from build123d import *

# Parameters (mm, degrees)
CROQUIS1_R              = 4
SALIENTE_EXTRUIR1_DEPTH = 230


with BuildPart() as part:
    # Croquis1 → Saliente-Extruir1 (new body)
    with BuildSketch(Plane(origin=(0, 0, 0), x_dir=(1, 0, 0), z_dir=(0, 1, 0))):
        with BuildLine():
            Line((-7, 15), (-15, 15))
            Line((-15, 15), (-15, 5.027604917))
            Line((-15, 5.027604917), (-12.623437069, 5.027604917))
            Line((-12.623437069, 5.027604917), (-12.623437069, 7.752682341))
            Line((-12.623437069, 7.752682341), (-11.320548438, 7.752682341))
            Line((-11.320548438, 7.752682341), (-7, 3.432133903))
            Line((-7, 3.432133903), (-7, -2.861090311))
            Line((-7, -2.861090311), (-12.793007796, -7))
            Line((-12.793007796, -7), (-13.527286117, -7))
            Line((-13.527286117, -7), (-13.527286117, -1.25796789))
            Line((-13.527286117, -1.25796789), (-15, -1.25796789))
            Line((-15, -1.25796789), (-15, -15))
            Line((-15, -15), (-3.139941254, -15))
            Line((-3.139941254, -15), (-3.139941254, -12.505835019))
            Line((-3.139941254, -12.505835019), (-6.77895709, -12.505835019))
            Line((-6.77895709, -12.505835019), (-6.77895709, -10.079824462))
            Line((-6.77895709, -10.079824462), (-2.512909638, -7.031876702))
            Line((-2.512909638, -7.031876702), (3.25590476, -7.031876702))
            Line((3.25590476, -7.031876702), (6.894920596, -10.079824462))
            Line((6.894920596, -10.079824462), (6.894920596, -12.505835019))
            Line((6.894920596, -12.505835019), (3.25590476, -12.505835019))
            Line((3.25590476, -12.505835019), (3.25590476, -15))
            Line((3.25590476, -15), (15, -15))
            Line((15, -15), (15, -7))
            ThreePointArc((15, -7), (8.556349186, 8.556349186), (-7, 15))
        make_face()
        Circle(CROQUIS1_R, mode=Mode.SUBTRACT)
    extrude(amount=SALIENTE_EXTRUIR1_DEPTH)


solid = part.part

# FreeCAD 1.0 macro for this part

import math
import FreeCAD as App
import Part
import Sketcher
Q = App.Units.Quantity

doc = App.newDocument("Part")
body = doc.addObject("PartDesign::Body", "Body")

# Sketch on XZ plane
sketch1 = doc.addObject("Sketcher::SketchObject", "Sketch")
body.addObject(sketch1)
sketch1.AttachmentSupport = (doc.XZ_Plane, [""])
sketch1.MapMode = "FlatFace"
sketch1.addGeometry([
    Part.LineSegment(App.Vector(-7, -15, 0), App.Vector(-15, -15, 0)),  # 0
    Part.LineSegment(App.Vector(-15, -15, 0), App.Vector(-15, -5, 0)),  # 1
    Part.LineSegment(App.Vector(-15, -5, 0), App.Vector(-12.6, -5, 0)),  # 2
    Part.LineSegment(App.Vector(-12.6, -5, 0), App.Vector(-12.6, -7.8, 0)),  # 3
    Part.LineSegment(App.Vector(-12.6, -7.8, 0), App.Vector(-11.3, -7.8, 0)),  # 4
    Part.LineSegment(App.Vector(-11.3, -7.8, 0), App.Vector(-7, -3.4, 0)),  # 5
    Part.LineSegment(App.Vector(-7, -3.4, 0), App.Vector(-7, 2.9, 0)),  # 6
    Part.LineSegment(App.Vector(-7, 2.9, 0), App.Vector(-12.8, 7, 0)),  # 7
    Part.LineSegment(App.Vector(-12.8, 7, 0), App.Vector(-13.5, 7, 0)),  # 8
    Part.LineSegment(App.Vector(-13.5, 7, 0), App.Vector(-13.5, 1.3, 0)),  # 9
    Part.LineSegment(App.Vector(-13.5, 1.3, 0), App.Vector(-15, 1.3, 0)),  # 10
    Part.LineSegment(App.Vector(-15, 1.3, 0), App.Vector(-15, 15, 0)),  # 11
    Part.LineSegment(App.Vector(-15, 15, 0), App.Vector(-3.1, 15, 0)),  # 12
    Part.LineSegment(App.Vector(-3.1, 15, 0), App.Vector(-3.1, 12.5, 0)),  # 13
    Part.LineSegment(App.Vector(-3.1, 12.5, 0), App.Vector(-6.8, 12.5, 0)),  # 14
    Part.LineSegment(App.Vector(-6.8, 12.5, 0), App.Vector(-6.8, 10.1, 0)),  # 15
    Part.LineSegment(App.Vector(-6.8, 10.1, 0), App.Vector(-2.5, 7, 0)),  # 16
    Part.LineSegment(App.Vector(-2.5, 7, 0), App.Vector(3.3, 7, 0)),  # 17
    Part.LineSegment(App.Vector(3.3, 7, 0), App.Vector(6.9, 10.1, 0)),  # 18
    Part.LineSegment(App.Vector(6.9, 10.1, 0), App.Vector(6.9, 12.5, 0)),  # 19
    Part.LineSegment(App.Vector(6.9, 12.5, 0), App.Vector(3.3, 12.5, 0)),  # 20
    Part.LineSegment(App.Vector(3.3, 12.5, 0), App.Vector(3.3, 15, 0)),  # 21
    Part.LineSegment(App.Vector(3.3, 15, 0), App.Vector(15, 15, 0)),  # 22
    Part.LineSegment(App.Vector(15, 15, 0), App.Vector(15, 7, 0)),  # 23
    Part.ArcOfCircle(Part.Circle(App.Vector(-7, 7, 0), App.Vector(0, 0, 1), 22), math.radians(-90), math.radians(0)),  # 24
    Part.Circle(App.Vector(0, 0, 0), App.Vector(0, 0, 1), 4),  # 25
], False)
sketch1.addConstraint([
    Sketcher.Constraint("Coincident", 0, 2, 1, 1),
    Sketcher.Constraint("Coincident", 1, 2, 2, 1),
    Sketcher.Constraint("Coincident", 2, 2, 3, 1),
    Sketcher.Constraint("Coincident", 3, 2, 4, 1),
    Sketcher.Constraint("Coincident", 4, 2, 5, 1),
    Sketcher.Constraint("Coincident", 5, 2, 6, 1),
    Sketcher.Constraint("Coincident", 6, 2, 7, 1),
    Sketcher.Constraint("Coincident", 7, 2, 8, 1),
    Sketcher.Constraint("Coincident", 8, 2, 9, 1),
    Sketcher.Constraint("Coincident", 9, 2, 10, 1),
    Sketcher.Constraint("Coincident", 10, 2, 11, 1),
    Sketcher.Constraint("Coincident", 11, 2, 12, 1),
    Sketcher.Constraint("Coincident", 12, 2, 13, 1),
    Sketcher.Constraint("Coincident", 13, 2, 14, 1),
    Sketcher.Constraint("Coincident", 14, 2, 15, 1),
    Sketcher.Constraint("Coincident", 15, 2, 16, 1),
    Sketcher.Constraint("Coincident", 16, 2, 17, 1),
    Sketcher.Constraint("Coincident", 17, 2, 18, 1),
    Sketcher.Constraint("Coincident", 18, 2, 19, 1),
    Sketcher.Constraint("Coincident", 19, 2, 20, 1),
    Sketcher.Constraint("Coincident", 20, 2, 21, 1),
    Sketcher.Constraint("Coincident", 21, 2, 22, 1),
    Sketcher.Constraint("Coincident", 22, 2, 23, 1),
    Sketcher.Constraint("Tangent", 23, 2, 24, 2),
    Sketcher.Constraint("Tangent", 24, 1, 0, 1),
    Sketcher.Constraint("Horizontal", 0),
    Sketcher.Constraint("Vertical", 1),
    Sketcher.Constraint("Horizontal", 2),
    Sketcher.Constraint("Vertical", 3),
    Sketcher.Constraint("Horizontal", 4),
    Sketcher.Constraint("Vertical", 6),
    Sketcher.Constraint("Horizontal", 8),
    Sketcher.Constraint("Vertical", 9),
    Sketcher.Constraint("Horizontal", 10),
    Sketcher.Constraint("Vertical", 11),
    Sketcher.Constraint("Horizontal", 12),
    Sketcher.Constraint("Vertical", 13),
    Sketcher.Constraint("Horizontal", 14),
    Sketcher.Constraint("Vertical", 15),
    Sketcher.Constraint("Horizontal", 17),
    Sketcher.Constraint("Vertical", 19),
    Sketcher.Constraint("Horizontal", 20),
    Sketcher.Constraint("Vertical", 21),
    Sketcher.Constraint("Horizontal", 22),
    Sketcher.Constraint("Vertical", 23),
    Sketcher.Constraint("Coincident", 25, 3, -1, 1),
    Sketcher.Constraint("Symmetric", 0, 2, 22, 2, -1, 1),
    Sketcher.Constraint("Symmetric", 11, 2, 22, 2, -2),
    Sketcher.Constraint("Parallel", 7, 16),
    Sketcher.Constraint("Horizontal", 24, 3, 7, 2),
    Sketcher.Constraint("Horizontal", 15, 2, 18, 2),
    Sketcher.Constraint("Horizontal", 14, 2, 19, 2),
    Sketcher.Constraint("Vertical", 24, 3, 5, 2),
    Sketcher.Constraint("Vertical", 17, 2, 20, 2),
    Sketcher.Constraint("Equal", 14, 20),
    Sketcher.Constraint("Equal", 0, 23),
    Sketcher.Constraint("Diameter", 25, 8.0),
    Sketcher.Constraint("Radius", 24, 22.0),
    Sketcher.Constraint("DistanceX", 0, 2, 0, 1, 8.0),
    Sketcher.Constraint("Angle", 5, Q("45 deg")),
    Sketcher.Constraint("DistanceX", 4, 1, 4, 2, 1.302889),
    Sketcher.Constraint("DistanceX", 8, 2, 8, 1, 0.734278),
    Sketcher.Constraint("DistanceX", 12, 1, 12, 2, 11.860059),
    Sketcher.Constraint("DistanceY", 15, 2, 15, 1, 2.426011),
    Sketcher.Constraint("Distance", 5, 6.110178),
    Sketcher.Constraint("Distance", 16, 5.243009),
    Sketcher.Constraint("DistanceX", 10, 2, 10, 1, 1.472714),
    Sketcher.Constraint("DistanceX", 14, 2, 14, 1, 3.639016),
    Sketcher.Constraint("DistanceX", 17, 1, 17, 2, 5.768814),
    Sketcher.Constraint("DistanceX", 22, 1, 22, 2, 11.744095),
    Sketcher.Constraint("DistanceY", 1, 1, 1, 2, 9.972395),
    Sketcher.Constraint("DistanceY", 3, 2, 3, 1, 2.725077),
    Sketcher.Constraint("DistanceY", 9, 2, 9, 1, 5.742032),
    Sketcher.Constraint("DistanceY", 13, 2, 13, 1, 2.494165),
])
pad1 = doc.addObject("PartDesign::Pad", "Pad")
body.addObject(pad1)
pad1.Profile = sketch1
pad1.Length = 230
pad1.Reversed = True

doc.recompute()
